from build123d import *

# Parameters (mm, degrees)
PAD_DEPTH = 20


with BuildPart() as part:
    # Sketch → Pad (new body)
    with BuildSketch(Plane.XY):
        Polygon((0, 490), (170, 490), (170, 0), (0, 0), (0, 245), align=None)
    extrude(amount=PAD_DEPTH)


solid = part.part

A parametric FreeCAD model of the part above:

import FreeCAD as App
import Part
import Sketcher
from FreeCAD import Vector

doc = App.newDocument("Part")
body = doc.addObject("PartDesign::Body", "Body")

# Sketch on XY plane
sketch1 = body.newObject("Sketcher::SketchObject", "Sketch")
sketch1.AttachmentSupport = (doc.getObject("XY_Plane"), [""])
sketch1.MapMode = "FlatFace"
sketch1.addGeometry([
    Part.LineSegment(Vector(170, 490, 0), Vector(0, 490, 0)),
    Part.LineSegment(Vector(0, 490, 0), Vector(0, 0, 0)),
    Part.LineSegment(Vector(0, 0, 0), Vector(170, 0, 0)),
    Part.LineSegment(Vector(170, 0, 0), Vector(170, 490, 0)),
], False)
sketch1.addConstraint([
    Sketcher.Constraint("Coincident", 0, 2, 1, 1),
    Sketcher.Constraint("Coincident", 1, 2, 2, 1),
    Sketcher.Constraint("Coincident", 2, 2, 3, 1),
    Sketcher.Constraint("Coincident", 3, 2, 0, 1),
    Sketcher.Constraint("Horizontal", 0),
    Sketcher.Constraint("Vertical", 1),
    Sketcher.Constraint("Horizontal", 2),
    Sketcher.Constraint("Vertical", 3),
    Sketcher.Constraint("Coincident", 1, 2, -1, 1),
    Sketcher.Constraint("DistanceX", 0, 2, 0, 1, 170.0),
    Sketcher.Constraint("DistanceY", 1, 2, 1, 1, 490.0),
])
pad1 = body.newObject("PartDesign::Pad", "Pad")
pad1.Profile = sketch1
pad1.Length = 20

doc.recompute()
